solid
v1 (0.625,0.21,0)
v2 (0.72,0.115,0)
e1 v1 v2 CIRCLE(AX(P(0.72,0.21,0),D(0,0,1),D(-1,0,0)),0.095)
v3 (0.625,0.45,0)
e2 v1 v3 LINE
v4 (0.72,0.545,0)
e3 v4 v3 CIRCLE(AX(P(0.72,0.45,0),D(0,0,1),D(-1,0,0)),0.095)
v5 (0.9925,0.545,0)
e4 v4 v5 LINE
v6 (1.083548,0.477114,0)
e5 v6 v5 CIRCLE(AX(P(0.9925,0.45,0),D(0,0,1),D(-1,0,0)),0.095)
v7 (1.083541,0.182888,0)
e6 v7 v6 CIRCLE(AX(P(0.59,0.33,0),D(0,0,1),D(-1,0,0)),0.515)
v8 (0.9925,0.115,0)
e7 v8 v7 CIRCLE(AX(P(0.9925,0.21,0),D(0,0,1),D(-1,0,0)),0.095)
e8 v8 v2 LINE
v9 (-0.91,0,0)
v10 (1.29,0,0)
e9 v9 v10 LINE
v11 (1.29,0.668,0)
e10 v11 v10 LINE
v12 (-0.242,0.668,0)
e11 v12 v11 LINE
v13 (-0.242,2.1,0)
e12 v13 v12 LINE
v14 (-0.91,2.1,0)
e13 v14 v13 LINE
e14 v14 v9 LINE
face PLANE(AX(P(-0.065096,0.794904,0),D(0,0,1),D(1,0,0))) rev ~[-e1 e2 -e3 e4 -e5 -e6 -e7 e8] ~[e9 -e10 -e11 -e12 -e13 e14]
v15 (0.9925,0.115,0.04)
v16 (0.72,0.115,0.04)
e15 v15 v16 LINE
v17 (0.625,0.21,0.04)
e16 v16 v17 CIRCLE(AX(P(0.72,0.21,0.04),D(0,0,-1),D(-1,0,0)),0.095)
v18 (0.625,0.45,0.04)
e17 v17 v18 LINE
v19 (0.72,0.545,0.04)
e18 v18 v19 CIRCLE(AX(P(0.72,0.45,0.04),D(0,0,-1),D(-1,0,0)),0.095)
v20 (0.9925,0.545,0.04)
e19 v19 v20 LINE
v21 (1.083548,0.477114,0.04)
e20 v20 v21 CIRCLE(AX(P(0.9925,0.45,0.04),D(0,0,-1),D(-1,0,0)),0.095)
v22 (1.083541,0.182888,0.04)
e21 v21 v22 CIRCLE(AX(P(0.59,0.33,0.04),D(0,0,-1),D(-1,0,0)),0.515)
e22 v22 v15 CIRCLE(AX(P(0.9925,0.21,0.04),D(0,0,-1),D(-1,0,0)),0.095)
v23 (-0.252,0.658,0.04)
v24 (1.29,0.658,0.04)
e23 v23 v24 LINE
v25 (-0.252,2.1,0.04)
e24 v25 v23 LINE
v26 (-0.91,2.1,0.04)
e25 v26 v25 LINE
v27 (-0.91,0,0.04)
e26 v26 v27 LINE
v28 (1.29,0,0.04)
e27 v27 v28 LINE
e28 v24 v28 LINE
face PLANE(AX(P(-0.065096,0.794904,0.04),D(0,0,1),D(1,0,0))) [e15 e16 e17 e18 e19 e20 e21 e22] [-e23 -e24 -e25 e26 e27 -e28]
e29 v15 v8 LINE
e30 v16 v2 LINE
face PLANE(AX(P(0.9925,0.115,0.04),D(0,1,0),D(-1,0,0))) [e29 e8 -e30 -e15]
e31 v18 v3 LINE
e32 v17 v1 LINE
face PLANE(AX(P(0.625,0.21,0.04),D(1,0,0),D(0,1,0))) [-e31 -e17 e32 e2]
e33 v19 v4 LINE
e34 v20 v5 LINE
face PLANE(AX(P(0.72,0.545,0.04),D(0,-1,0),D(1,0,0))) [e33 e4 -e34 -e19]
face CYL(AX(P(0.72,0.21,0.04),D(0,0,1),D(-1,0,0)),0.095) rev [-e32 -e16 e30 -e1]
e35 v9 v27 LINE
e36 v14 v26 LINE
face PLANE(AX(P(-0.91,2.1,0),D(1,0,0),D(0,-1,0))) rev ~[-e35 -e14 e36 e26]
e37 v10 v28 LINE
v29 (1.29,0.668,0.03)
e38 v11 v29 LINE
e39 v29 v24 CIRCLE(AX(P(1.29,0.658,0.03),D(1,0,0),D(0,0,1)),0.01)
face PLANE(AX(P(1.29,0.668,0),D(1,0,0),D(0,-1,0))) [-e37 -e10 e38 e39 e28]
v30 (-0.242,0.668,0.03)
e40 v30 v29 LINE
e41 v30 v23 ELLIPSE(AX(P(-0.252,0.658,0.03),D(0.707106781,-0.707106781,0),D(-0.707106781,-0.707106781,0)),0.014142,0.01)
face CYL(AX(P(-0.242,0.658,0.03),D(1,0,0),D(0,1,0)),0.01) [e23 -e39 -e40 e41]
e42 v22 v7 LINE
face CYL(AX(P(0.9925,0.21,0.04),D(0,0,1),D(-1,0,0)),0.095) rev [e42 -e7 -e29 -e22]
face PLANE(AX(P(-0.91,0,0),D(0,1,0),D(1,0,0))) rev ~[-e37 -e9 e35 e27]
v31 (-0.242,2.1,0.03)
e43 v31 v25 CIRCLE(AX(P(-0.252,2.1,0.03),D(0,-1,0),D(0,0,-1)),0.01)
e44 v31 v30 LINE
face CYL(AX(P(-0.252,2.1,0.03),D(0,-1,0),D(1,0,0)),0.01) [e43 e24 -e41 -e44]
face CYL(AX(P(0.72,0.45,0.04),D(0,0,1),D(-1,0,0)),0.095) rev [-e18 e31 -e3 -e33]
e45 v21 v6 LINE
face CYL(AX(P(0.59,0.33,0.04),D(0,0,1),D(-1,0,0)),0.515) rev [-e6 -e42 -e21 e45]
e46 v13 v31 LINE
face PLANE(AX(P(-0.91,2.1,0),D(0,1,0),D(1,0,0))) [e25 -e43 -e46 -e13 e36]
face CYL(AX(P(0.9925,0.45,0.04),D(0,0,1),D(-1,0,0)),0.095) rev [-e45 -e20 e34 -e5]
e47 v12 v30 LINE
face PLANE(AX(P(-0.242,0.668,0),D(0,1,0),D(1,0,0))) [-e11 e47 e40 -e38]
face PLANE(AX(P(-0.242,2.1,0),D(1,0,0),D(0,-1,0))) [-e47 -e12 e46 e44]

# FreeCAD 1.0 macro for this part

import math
import FreeCAD as App
import Part
import Sketcher
Q = App.Units.Quantity


def edges_at(feature, points):
    """Names of the edges that pass closest to the given points."""
    edges = feature.Shape.Edges
    near = lambda p: min(range(len(edges)), key=lambda i: edges[i].distToShape(Part.Vertex(*p))[0])
    return sorted({f"Edge{near(p) + 1}" for p in points})


def add_polygon(sketch, points):
    """Adds a closed chain of lines whose ends are joined by coincident constraints."""
    first, n = sketch.GeometryCount, len(points)
    for a, b in zip(points, points[1:] + points[:1]):
        sketch.addGeometry(Part.LineSegment(App.Vector(*a, 0), App.Vector(*b, 0)), False)
    for i in range(n):
        sketch.addConstraint(Sketcher.Constraint("Coincident", first + i, 2, first + (i + 1) % n, 1))

doc = App.newDocument("Part")
body = doc.addObject("PartDesign::Body", "Body")

# Sketch on XY plane
sketch1 = doc.addObject("Sketcher::SketchObject", "Sketch")
body.addObject(sketch1)
sketch1.AttachmentSupport = (doc.XY_Plane, [""])
sketch1.MapMode = "FlatFace"
add_polygon(sketch1, [(-0.2, 2.1), (-0.9, 2.1), (-0.9, 0), (1.3, 0), (1.3, 0.7), (-0.2, 0.7)])  # lines 0-5
sketch1.addConstraint([
    Sketcher.Constraint("Horizontal", 0),
    Sketcher.Constraint("Vertical", 1),
    Sketcher.Constraint("Horizontal", 2),
    Sketcher.Constraint("Vertical", 3),
    Sketcher.Constraint("Horizontal", 4),
    Sketcher.Constraint("Vertical", 5),
    Sketcher.Constraint("PointOnObject", 1, 2, -1),
    Sketcher.Constraint("Equal", 0, 3),
    Sketcher.Constraint("DistanceX", 2, 1, 2, 2, Q("2.2 mm")),
    Sketcher.Constraint("DistanceY", 1, 2, 1, 1, Q("2.1 mm")),
    Sketcher.Constraint("DistanceX", 0, 2, 0, 1, Q("0.668 mm")),
    Sketcher.Constraint("DistanceX", 0, 2, -1, 1, Q("0.91 mm")),
])
pad1 = doc.addObject("PartDesign::Pad", "Pad")
body.addObject(pad1)
pad1.Profile = sketch1
pad1.Length = 0.04
doc.recompute()

fillet = doc.addObject("PartDesign::Fillet", "Fillet")
body.addObject(fillet)
fillet.Base = (pad1, edges_at(pad1, [(-0.242, 1.384, 0.04), (0.524, 0.668, 0.04)]))
fillet.Radius = 0.01

# Sketch on XY plane
sketch2 = doc.addObject("Sketcher::SketchObject", "Sketch001")
body.addObject(sketch2)
sketch2.AttachmentSupport = (doc.XY_Plane, [""])
sketch2.MapMode = "FlatFace"
sketch2.AttachmentOffset = App.Placement(App.Vector(0, 0, 0.04), App.Rotation())
sketch2.addGeometry([
    Part.LineSegment(App.Vector(0.72, 0.12, 0), App.Vector(0.99, 0.12, 0)),  # 0
    Part.ArcOfCircle(Part.Circle(App.Vector(0.99, 0.21, 0), App.Vector(0, 0, 1), 0.09), math.radians(-90), math.radians(-17)),  # 1
    Part.ArcOfCircle(Part.Circle(App.Vector(0.59, 0.33, 0), App.Vector(0, 0, 1), 0.51), math.radians(-17), math.radians(17)),  # 2
    Part.ArcOfCircle(Part.Circle(App.Vector(0.99, 0.45, 0), App.Vector(0, 0, 1), 0.09), math.radians(17), math.radians(90)),  # 3
    Part.LineSegment(App.Vector(0.99, 0.55, 0), App.Vector(0.72, 0.55, 0)),  # 4
    Part.ArcOfCircle(Part.Circle(App.Vector(0.72, 0.45, 0), App.Vector(0, 0, 1), 0.1), math.radians(90), math.radians(180)),  # 5
    Part.LineSegment(App.Vector(0.62, 0.45, 0), App.Vector(0.62, 0.21, 0)),  # 6
    Part.ArcOfCircle(Part.Circle(App.Vector(0.72, 0.21, 0), App.Vector(0, 0, 1), 0.1), math.radians(180), math.radians(270)),  # 7
], False)
sketch2.addConstraint([
    Sketcher.Constraint("Tangent", 0, 2, 1, 1),
    Sketcher.Constraint("Tangent", 1, 2, 2, 1),
    Sketcher.Constraint("Tangent", 2, 2, 3, 1),
    Sketcher.Constraint("Tangent", 3, 2, 4, 1),
    Sketcher.Constraint("Tangent", 4, 2, 5, 1),
    Sketcher.Constraint("Tangent", 5, 2, 6, 1),
    Sketcher.Constraint("Tangent", 6, 2, 7, 1),
    Sketcher.Constraint("Tangent", 7, 2, 0, 1),
    Sketcher.Constraint("Horizontal", 0),
    Sketcher.Constraint("Horizontal", 4),
    Sketcher.Constraint("Vertical", 6),
    Sketcher.Constraint("Equal", 1, 3),
    Sketcher.Constraint("Equal", 3, 5),
    Sketcher.Constraint("Equal", 5, 7),
    Sketcher.Constraint("Vertical", 1, 3, 3, 3),
    Sketcher.Constraint("Radius", 1, Q("0.095 mm")),
    Sketcher.Constraint("Radius", 2, Q("0.515 mm")),
    Sketcher.Constraint("DistanceY", 6, 2, 6, 1, Q("0.24 mm")),
    Sketcher.Constraint("DistanceY", -1, 1, 1, 3, Q("0.21 mm")),
    Sketcher.Constraint("DistanceX", -1, 1, 2, 3, Q("0.59 mm")),
    Sketcher.Constraint("DistanceX", -1, 1, 5, 3, Q("0.72 mm")),
])
pocket1 = doc.addObject("PartDesign::Pocket", "Pocket")
body.addObject(pocket1)
pocket1.Profile = sketch2
pocket1.Type = "ThroughAll"

doc.recompute()
